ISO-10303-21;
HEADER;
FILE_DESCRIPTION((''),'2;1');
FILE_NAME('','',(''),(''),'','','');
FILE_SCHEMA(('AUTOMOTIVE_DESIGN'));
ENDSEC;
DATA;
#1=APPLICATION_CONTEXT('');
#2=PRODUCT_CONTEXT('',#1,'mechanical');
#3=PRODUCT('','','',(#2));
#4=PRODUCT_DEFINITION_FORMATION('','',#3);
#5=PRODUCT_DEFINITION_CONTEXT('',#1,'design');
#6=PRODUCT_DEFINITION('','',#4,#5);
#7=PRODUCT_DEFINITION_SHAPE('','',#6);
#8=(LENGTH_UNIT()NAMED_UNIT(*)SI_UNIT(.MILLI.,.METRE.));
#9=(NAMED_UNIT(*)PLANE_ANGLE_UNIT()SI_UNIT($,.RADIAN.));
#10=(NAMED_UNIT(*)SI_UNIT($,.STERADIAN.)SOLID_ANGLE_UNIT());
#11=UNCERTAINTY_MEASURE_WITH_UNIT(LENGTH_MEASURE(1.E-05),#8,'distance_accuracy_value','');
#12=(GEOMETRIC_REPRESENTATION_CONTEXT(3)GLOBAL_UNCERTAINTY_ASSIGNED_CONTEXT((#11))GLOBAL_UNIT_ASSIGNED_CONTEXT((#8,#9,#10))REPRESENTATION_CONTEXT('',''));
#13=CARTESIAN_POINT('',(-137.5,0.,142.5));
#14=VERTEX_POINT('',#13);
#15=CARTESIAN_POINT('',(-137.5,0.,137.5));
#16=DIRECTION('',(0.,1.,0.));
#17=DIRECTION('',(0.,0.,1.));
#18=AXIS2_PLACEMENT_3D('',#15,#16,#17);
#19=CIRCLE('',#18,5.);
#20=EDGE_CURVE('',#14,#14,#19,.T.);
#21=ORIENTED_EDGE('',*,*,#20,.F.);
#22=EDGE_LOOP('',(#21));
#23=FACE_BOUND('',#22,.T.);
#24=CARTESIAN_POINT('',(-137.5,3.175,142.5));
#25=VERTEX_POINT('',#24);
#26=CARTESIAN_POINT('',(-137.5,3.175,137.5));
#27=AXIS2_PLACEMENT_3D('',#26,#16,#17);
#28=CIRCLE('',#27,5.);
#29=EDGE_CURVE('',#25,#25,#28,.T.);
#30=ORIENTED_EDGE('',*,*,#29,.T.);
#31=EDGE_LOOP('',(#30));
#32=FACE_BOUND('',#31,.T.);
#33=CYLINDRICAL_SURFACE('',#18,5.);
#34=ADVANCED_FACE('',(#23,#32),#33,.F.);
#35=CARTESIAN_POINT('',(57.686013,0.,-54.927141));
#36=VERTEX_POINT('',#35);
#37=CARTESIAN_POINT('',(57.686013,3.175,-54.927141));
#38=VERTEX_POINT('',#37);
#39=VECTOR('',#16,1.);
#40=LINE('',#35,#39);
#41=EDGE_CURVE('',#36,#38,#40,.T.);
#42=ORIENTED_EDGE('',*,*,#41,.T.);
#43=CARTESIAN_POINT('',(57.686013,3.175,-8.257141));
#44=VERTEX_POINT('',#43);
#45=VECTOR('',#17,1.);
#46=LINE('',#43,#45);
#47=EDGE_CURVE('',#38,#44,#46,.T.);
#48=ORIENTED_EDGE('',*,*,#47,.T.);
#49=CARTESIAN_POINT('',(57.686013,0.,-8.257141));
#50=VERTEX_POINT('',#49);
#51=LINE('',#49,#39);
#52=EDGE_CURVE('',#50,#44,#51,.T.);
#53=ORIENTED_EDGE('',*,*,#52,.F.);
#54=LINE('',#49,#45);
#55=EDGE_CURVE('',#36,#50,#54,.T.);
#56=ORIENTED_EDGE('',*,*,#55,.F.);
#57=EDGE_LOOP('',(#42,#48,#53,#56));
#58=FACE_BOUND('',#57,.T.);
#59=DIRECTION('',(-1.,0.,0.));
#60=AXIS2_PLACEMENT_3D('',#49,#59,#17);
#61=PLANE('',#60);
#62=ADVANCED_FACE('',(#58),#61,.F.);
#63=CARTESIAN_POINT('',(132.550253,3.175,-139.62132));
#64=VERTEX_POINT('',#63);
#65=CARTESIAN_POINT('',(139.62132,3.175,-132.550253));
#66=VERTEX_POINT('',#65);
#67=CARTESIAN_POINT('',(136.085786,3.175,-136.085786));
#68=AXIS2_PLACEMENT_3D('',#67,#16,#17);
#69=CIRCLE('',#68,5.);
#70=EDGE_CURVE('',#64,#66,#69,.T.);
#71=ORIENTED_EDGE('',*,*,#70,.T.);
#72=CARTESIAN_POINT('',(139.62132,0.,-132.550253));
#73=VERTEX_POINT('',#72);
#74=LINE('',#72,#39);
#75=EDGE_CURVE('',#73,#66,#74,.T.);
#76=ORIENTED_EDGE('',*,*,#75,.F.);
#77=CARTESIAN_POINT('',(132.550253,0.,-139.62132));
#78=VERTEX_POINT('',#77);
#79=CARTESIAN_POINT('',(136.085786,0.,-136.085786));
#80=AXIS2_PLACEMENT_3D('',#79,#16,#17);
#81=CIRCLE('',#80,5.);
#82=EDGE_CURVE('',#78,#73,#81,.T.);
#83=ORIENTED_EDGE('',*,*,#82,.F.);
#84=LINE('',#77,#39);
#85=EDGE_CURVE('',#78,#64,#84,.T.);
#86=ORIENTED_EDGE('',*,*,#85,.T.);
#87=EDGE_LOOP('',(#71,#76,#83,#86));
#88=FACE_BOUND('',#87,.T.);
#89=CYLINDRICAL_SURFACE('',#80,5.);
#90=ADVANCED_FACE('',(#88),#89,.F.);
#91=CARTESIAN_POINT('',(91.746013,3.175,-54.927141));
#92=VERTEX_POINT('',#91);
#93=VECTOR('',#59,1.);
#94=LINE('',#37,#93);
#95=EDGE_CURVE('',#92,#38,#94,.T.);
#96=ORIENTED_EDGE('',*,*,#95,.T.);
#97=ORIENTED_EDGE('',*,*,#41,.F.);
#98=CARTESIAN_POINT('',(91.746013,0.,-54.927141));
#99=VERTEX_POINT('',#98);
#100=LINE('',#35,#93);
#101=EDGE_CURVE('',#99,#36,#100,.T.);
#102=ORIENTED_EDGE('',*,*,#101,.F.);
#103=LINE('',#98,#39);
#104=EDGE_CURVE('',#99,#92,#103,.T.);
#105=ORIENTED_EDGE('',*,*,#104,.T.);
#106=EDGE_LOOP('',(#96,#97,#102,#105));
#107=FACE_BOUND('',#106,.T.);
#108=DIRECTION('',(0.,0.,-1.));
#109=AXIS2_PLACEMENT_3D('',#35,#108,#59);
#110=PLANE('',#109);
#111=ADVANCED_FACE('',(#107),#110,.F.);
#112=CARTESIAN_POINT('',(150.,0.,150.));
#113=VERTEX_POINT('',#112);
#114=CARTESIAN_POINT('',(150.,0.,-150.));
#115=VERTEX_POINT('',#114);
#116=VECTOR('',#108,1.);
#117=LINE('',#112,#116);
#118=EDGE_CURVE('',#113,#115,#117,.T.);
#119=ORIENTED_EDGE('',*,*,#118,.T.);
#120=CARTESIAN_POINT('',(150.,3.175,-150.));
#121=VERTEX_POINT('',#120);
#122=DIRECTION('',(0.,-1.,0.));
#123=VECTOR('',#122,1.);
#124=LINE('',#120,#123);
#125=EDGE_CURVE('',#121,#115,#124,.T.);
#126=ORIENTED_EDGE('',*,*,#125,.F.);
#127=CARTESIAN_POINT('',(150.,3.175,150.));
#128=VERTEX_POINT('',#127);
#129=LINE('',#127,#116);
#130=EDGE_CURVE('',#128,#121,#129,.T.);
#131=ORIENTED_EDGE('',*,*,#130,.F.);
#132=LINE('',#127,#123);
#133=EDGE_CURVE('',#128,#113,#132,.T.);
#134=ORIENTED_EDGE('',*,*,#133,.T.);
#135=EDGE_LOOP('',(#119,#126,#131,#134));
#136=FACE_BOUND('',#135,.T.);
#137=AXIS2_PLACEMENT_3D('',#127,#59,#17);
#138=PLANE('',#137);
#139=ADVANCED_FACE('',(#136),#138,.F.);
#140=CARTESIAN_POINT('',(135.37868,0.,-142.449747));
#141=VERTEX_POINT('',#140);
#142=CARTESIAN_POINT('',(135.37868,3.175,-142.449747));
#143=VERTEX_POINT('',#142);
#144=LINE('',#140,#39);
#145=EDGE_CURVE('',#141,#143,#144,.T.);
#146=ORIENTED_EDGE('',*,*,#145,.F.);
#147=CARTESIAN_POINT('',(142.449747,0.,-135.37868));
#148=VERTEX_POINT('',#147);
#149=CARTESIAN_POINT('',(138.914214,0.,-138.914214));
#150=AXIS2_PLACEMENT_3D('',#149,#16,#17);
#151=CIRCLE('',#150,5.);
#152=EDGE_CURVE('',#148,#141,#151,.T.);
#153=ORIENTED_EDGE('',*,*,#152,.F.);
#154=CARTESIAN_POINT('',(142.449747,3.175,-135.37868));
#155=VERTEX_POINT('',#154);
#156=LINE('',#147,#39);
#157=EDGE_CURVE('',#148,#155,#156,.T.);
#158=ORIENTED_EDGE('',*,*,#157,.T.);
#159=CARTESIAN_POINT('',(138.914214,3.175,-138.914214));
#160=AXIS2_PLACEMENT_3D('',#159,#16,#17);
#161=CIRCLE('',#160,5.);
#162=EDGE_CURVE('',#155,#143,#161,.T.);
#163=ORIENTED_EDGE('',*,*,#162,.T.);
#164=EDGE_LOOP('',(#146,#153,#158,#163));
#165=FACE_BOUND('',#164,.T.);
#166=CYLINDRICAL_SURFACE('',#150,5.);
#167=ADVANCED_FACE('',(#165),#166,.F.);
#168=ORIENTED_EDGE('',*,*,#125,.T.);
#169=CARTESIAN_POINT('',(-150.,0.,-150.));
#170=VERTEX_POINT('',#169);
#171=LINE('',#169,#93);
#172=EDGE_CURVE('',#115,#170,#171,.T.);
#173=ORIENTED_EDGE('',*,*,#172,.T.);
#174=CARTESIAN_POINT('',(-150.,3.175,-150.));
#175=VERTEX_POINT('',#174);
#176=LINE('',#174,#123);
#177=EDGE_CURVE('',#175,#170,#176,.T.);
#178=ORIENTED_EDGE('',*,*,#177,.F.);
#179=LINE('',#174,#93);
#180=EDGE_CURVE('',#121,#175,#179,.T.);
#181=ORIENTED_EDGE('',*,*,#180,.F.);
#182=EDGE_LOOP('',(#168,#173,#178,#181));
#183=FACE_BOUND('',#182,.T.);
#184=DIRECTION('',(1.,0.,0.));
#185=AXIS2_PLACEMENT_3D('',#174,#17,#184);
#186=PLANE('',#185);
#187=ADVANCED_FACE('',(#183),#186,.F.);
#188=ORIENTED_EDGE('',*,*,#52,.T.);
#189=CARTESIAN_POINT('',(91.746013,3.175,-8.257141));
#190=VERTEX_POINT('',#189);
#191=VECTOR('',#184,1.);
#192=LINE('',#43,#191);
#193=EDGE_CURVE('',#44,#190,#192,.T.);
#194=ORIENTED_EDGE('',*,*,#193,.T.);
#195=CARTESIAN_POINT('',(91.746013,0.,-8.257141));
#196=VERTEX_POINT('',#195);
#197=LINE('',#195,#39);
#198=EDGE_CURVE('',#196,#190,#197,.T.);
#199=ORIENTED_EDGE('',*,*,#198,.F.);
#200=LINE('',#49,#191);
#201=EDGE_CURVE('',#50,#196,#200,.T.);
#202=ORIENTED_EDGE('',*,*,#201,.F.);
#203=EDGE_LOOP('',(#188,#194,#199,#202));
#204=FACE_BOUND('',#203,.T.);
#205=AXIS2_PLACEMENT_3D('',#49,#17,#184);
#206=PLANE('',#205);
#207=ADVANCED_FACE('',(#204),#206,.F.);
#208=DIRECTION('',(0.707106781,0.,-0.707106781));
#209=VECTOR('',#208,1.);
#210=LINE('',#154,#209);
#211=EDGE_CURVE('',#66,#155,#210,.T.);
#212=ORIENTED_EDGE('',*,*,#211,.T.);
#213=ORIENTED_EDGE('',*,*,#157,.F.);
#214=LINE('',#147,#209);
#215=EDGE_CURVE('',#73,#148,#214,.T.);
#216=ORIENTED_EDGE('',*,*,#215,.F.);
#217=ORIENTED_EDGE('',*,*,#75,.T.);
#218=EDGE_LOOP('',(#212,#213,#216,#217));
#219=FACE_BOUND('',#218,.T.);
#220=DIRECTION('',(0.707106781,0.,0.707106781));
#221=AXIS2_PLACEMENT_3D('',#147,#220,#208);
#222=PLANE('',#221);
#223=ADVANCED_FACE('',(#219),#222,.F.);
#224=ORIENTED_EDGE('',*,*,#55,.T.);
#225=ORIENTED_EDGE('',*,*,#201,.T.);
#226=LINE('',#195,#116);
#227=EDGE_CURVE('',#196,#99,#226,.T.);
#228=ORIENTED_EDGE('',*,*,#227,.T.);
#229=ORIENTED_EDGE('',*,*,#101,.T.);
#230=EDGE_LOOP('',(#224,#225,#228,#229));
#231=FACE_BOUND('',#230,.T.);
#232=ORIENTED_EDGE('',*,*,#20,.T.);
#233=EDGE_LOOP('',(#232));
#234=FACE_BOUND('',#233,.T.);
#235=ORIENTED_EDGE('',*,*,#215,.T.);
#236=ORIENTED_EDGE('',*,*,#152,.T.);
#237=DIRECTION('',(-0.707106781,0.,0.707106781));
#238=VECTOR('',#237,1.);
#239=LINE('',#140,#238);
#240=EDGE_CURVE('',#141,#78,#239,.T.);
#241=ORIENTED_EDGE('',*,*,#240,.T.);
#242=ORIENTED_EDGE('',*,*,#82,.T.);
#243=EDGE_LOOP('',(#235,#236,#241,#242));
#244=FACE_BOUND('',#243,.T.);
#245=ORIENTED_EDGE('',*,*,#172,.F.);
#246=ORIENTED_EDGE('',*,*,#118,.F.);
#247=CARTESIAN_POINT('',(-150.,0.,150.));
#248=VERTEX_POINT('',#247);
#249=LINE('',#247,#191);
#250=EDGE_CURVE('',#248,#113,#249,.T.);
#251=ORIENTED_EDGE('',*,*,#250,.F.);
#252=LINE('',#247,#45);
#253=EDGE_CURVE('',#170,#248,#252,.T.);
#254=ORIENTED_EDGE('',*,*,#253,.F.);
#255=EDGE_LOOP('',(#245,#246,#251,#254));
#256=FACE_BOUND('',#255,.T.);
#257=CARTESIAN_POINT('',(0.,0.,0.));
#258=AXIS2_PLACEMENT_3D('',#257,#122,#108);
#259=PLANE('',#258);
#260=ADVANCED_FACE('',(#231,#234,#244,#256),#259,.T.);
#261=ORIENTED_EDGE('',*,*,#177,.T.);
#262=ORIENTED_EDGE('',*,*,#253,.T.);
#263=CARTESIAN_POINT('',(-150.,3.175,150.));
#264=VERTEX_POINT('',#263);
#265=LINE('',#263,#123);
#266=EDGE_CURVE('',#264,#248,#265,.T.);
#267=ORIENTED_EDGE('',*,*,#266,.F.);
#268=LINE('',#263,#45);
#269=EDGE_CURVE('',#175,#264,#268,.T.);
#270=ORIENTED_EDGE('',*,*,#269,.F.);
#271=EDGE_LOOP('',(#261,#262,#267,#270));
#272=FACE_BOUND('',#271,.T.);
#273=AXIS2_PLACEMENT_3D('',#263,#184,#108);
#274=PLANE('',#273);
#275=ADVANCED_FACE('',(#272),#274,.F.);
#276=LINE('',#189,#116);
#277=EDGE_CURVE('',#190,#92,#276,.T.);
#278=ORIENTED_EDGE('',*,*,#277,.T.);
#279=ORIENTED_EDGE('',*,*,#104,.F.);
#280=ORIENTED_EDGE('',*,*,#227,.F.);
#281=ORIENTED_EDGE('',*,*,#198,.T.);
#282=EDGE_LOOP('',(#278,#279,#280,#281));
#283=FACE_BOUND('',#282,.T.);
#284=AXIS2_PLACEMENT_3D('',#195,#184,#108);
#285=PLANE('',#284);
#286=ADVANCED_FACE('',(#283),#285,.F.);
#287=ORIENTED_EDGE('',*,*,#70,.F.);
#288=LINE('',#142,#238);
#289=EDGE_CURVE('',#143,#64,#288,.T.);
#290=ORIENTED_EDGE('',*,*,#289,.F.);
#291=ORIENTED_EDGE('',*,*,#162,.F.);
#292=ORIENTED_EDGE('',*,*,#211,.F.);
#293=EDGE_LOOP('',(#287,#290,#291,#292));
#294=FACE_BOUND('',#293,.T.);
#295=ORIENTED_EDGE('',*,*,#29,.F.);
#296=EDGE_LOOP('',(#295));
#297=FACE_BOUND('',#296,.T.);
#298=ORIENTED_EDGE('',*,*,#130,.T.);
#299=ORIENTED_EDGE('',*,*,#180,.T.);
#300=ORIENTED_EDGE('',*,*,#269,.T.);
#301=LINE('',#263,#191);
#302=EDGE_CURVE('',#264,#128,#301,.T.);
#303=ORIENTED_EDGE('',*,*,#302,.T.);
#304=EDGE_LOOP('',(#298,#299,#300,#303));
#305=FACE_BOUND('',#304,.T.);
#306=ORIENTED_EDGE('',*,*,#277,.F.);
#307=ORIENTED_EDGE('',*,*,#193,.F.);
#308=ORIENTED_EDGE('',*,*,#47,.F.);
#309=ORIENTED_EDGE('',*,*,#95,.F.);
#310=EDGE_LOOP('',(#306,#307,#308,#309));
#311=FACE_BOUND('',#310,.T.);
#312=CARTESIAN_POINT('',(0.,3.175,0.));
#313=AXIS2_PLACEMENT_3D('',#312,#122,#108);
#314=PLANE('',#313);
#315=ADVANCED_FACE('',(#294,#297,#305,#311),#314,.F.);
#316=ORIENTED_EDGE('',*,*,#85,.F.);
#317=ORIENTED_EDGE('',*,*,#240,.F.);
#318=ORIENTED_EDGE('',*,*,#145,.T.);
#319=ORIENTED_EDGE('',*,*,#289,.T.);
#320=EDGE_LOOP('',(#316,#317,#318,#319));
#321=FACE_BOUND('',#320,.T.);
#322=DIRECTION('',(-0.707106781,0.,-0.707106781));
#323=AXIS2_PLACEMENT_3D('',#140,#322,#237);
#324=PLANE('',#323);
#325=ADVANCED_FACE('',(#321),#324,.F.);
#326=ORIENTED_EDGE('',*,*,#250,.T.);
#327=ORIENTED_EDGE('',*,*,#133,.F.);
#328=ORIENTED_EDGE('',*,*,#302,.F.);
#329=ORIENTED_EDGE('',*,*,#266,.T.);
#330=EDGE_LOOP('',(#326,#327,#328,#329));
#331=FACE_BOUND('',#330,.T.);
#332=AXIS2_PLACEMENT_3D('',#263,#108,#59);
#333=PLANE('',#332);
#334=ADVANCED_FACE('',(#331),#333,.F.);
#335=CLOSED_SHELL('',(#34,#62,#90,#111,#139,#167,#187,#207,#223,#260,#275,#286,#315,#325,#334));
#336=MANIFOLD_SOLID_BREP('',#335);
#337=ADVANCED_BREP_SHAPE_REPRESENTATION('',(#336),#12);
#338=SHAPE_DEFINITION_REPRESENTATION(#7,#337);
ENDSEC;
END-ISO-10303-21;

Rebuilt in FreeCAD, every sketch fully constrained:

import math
import FreeCAD as App
import Part
import Sketcher
Q = App.Units.Quantity


def add_polygon(sketch, points):
    """Adds a closed chain of lines whose ends are joined by coincident constraints."""
    first, n = sketch.GeometryCount, len(points)
    for a, b in zip(points, points[1:] + points[:1]):
        sketch.addGeometry(Part.LineSegment(App.Vector(*a, 0), App.Vector(*b, 0)), False)
    for i in range(n):
        sketch.addConstraint(Sketcher.Constraint("Coincident", first + i, 2, first + (i + 1) % n, 1))

doc = App.newDocument("Part")
params = doc.addObject("Spreadsheet::Sheet", "Params")
for row, (alias, value) in enumerate([
    ("sketch1_width", "300 mm"),
    ("pad1_length", "3.175 mm"),
    ("sketch2_diameter", "10 mm"),
    ("sketch2_length", "4 mm"),
    ("sketch3_width", "34.06 mm"),
    ("sketch3_height", "46.67 mm"),
], start=1):
    params.set(f"A{row}", alias)
    params.set(f"B{row}", "=" + value)
    params.setAlias(f"B{row}", alias)

body = doc.addObject("PartDesign::Body", "Body")

sketch1 = doc.addObject("Sketcher::SketchObject", "Sketch")
body.addObject(sketch1)
sketch1.AttachmentSupport = (doc.XZ_Plane, [""])
sketch1.MapMode = "FlatFace"
add_polygon(sketch1, [(-150, -150), (-150, 150), (150, 150), (150, -150)])
sketch1.addConstraint([
    Sketcher.Constraint("Vertical", 0),
    Sketcher.Constraint("Horizontal", 1),
    Sketcher.Constraint("Vertical", 2),
    Sketcher.Constraint("Horizontal", 3),
    Sketcher.Constraint("Symmetric", 0, 2, 2, 2, -1, 1),
    Sketcher.Constraint("Equal", 3, 0),
    Sketcher.Constraint("DistanceX", 1, 1, 1, 2, 300.0),
])
sketch1.setExpression("Constraints[10]", "Params.sketch1_width")
pad1 = doc.addObject("PartDesign::Pad", "Pad")
body.addObject(pad1)
pad1.Profile = sketch1
pad1.setExpression("Length", "Params.pad1_length")
pad1.Reversed = True

sketch2 = doc.addObject("Sketcher::SketchObject", "Sketch001")
body.addObject(sketch2)
sketch2.AttachmentSupport = (doc.XZ_Plane, [""])
sketch2.MapMode = "FlatFace"
sketch2.AttachmentOffset = App.Placement(App.Vector(0, 0, -3.175), App.Rotation())
sketch2.addGeometry([
    Part.Circle(App.Vector(-137.5, 137.5, 0), App.Vector(0, 0, 1), 5),
    Part.LineSegment(App.Vector(139.6, -132.6, 0), App.Vector(142.4, -135.4, 0)),
    Part.ArcOfCircle(Part.Circle(App.Vector(138.9, -138.9, 0), App.Vector(0, 0, 1), 5), math.radians(-135), math.radians(45)),
    Part.LineSegment(App.Vector(135.4, -142.4, 0), App.Vector(132.6, -139.6, 0)),
    Part.ArcOfCircle(Part.Circle(App.Vector(136.1, -136.1, 0), App.Vector(0, 0, 1), 5), math.radians(45), math.radians(225)),
], False)
sketch2.addConstraint([
    Sketcher.Constraint("Tangent", 1, 2, 2, 2),
    Sketcher.Constraint("Tangent", 2, 1, 3, 1),
    Sketcher.Constraint("Tangent", 3, 2, 4, 2),
    Sketcher.Constraint("Tangent", 4, 1, 1, 1),
    Sketcher.Constraint("Equal", 0, 2),
    Sketcher.Constraint("Equal", 2, 4),
    Sketcher.Constraint("Diameter", 0, 10.0),
    Sketcher.Constraint("Angle", 1, Q("-45 deg")),
    Sketcher.Constraint("Distance", 1, 4.0),
    Sketcher.Constraint("DistanceX", 0, 3, -1, 1, 137.5),
    Sketcher.Constraint("DistanceY", -1, 1, 0, 3, 137.5),
    Sketcher.Constraint("DistanceY", 1, 2, -1, 1, 135.37868),
    Sketcher.Constraint("DistanceX", -1, 1, 2, 1, 135.37868),
])
sketch2.setExpression("Constraints[6]", "Params.sketch2_diameter")
sketch2.setExpression("Constraints[8]", "Params.sketch2_length")
pocket1 = doc.addObject("PartDesign::Pocket", "Pocket")
body.addObject(pocket1)
pocket1.Profile = sketch2
pocket1.Type = "ThroughAll"
pocket1.Reversed = True

sketch3 = doc.addObject("Sketcher::SketchObject", "Sketch002")
body.addObject(sketch3)
sketch3.AttachmentSupport = (doc.XZ_Plane, [""])
sketch3.MapMode = "FlatFace"
sketch3.AttachmentOffset = App.Placement(App.Vector(0, 0, -3.175), App.Rotation())
add_polygon(sketch3, [(58, -55), (58, -8), (92, -8), (92, -55)])
sketch3.addConstraint([
    Sketcher.Constraint("Vertical", 0),
    Sketcher.Constraint("Horizontal", 1),
    Sketcher.Constraint("Vertical", 2),
    Sketcher.Constraint("Horizontal", 3),
    Sketcher.Constraint("DistanceX", 1, 1, 1, 2, 34.06),
    Sketcher.Constraint("DistanceY", 0, 1, 0, 2, 46.67),
    Sketcher.Constraint("DistanceY", 0, 2, -1, 1, 8.257141),
    Sketcher.Constraint("DistanceX", -1, 1, 0, 2, 57.686013),
])
sketch3.setExpression("Constraints[8]", "Params.sketch3_width")
sketch3.setExpression("Constraints[9]", "Params.sketch3_height")
pocket2 = doc.addObject("PartDesign::Pocket", "Pocket001")
body.addObject(pocket2)
pocket2.Profile = sketch3
pocket2.Type = "ThroughAll"
pocket2.Reversed = True

doc.recompute()
